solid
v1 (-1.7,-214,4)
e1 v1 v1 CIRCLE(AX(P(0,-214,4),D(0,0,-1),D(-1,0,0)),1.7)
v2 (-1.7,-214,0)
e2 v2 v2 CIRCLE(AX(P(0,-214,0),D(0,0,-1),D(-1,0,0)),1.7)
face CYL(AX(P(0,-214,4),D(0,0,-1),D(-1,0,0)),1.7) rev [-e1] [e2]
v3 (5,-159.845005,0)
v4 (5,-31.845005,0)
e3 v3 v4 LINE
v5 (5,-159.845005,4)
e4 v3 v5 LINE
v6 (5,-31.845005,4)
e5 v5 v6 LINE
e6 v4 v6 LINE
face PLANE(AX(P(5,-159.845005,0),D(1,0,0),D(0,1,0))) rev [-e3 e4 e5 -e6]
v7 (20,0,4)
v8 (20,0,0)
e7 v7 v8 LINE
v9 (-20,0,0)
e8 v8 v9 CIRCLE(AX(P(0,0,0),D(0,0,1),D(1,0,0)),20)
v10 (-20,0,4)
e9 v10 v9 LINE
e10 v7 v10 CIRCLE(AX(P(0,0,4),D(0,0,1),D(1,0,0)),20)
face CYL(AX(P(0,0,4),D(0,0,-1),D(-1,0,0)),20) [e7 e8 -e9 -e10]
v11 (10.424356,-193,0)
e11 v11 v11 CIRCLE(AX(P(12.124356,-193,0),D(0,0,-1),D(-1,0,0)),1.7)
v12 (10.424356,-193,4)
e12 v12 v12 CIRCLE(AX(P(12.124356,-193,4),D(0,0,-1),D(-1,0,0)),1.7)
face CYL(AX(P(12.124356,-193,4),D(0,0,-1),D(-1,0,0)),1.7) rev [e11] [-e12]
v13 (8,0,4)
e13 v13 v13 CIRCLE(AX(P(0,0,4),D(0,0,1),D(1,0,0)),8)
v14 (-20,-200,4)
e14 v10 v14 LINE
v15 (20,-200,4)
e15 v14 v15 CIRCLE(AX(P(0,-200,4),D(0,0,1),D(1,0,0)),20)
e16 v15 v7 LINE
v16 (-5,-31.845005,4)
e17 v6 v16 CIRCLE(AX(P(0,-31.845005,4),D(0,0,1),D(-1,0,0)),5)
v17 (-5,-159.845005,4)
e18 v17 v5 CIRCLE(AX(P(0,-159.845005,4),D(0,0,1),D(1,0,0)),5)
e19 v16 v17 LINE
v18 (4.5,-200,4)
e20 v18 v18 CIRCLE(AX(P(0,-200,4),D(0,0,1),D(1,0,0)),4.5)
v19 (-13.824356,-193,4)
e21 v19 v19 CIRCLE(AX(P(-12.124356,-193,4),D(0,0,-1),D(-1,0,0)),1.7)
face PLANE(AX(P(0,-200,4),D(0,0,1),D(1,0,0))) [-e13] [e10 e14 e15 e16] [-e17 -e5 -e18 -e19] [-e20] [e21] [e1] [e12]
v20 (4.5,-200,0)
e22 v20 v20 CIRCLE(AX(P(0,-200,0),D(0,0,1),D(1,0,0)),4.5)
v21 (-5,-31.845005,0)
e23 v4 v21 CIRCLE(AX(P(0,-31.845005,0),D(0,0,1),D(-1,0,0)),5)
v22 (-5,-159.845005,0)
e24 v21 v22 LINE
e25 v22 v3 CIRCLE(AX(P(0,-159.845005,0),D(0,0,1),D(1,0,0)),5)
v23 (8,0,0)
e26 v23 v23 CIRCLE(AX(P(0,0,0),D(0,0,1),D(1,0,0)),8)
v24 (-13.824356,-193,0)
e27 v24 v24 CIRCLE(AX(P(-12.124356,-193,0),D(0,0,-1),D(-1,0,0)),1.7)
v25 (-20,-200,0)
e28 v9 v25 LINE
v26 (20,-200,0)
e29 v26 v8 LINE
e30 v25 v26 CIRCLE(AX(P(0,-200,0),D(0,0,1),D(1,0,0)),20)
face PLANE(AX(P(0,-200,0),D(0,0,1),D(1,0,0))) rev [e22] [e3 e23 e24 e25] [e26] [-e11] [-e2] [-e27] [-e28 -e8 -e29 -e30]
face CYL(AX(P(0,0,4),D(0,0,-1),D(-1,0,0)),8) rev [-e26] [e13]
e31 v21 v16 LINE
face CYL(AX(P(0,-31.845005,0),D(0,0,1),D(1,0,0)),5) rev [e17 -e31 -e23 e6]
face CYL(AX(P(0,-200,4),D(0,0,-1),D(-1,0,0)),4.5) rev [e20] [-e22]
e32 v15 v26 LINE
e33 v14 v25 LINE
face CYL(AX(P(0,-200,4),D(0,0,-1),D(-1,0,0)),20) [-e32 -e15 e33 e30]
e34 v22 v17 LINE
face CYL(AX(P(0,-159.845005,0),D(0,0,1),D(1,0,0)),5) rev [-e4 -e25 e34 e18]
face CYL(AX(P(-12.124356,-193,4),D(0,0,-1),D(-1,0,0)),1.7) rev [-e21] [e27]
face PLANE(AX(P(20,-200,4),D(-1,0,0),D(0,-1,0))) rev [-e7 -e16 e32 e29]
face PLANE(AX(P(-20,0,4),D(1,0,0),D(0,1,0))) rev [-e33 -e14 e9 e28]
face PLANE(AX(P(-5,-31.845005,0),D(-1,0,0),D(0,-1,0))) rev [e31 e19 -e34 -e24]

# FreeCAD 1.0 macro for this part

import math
import FreeCAD as App
import Part
import Sketcher

doc = App.newDocument("Part")
body = doc.addObject("PartDesign::Body", "Body")

# Sketch on XY plane
sketch1 = body.newObject("Sketcher::SketchObject", "Sketch")
sketch1.AttachmentSupport = (doc.getObject("XY_Plane"), [""])
sketch1.MapMode = "FlatFace"
sketch1.addGeometry([
    Part.LineSegment(App.Vector(-20, 0, 0), App.Vector(-20, -200, 0)),  # 0
    Part.ArcOfCircle(Part.Circle(App.Vector(0, -200, 0), App.Vector(0, 0, 1), 20), math.radians(180), math.radians(360)),  # 1
    Part.LineSegment(App.Vector(20, -200, 0), App.Vector(20, 0, 0)),  # 2
    Part.ArcOfCircle(Part.Circle(App.Vector(0, 0, 0), App.Vector(0, 0, 1), 20), math.radians(0), math.radians(180)),  # 3
    Part.Circle(App.Vector(0, -200, 0), App.Vector(0, 0, 1), 4.5),  # 4
    Part.Circle(App.Vector(0, 0, 0), App.Vector(0, 0, 1), 8),  # 5
], False)
sketch1.addConstraint([
    Sketcher.Constraint("Tangent", 0, 2, 1, 1),
    Sketcher.Constraint("Tangent", 1, 2, 2, 1),
    Sketcher.Constraint("Tangent", 2, 2, 3, 1),
    Sketcher.Constraint("Tangent", 3, 2, 0, 1),
    Sketcher.Constraint("Vertical", 0),
    Sketcher.Constraint("Vertical", 2),
    Sketcher.Constraint("Coincident", 3, 3, -1, 1),
    Sketcher.Constraint("Coincident", 5, 3, -1, 1),
    Sketcher.Constraint("Coincident", 4, 3, 1, 3),
    Sketcher.Constraint("Diameter", 4, 9.0),
    Sketcher.Constraint("Diameter", 5, 16.0),
    Sketcher.Constraint("Radius", 1, 20.0),
    Sketcher.Constraint("DistanceY", 0, 2, 0, 1, 200.0),
])
pad1 = body.newObject("PartDesign::Pad", "Pad")
pad1.Profile = sketch1
pad1.Length = 4

# Sketch on XY plane
sketch2 = body.newObject("Sketcher::SketchObject", "Sketch001")
sketch2.AttachmentSupport = (doc.getObject("XY_Plane"), [""])
sketch2.MapMode = "FlatFace"
sketch2.AttachmentOffset = App.Placement(App.Vector(0, 0, 4), App.Rotation())
sketch2.addGeometry([
    Part.LineSegment(App.Vector(-5, -32, 0), App.Vector(-5, -160, 0)),
    Part.ArcOfCircle(Part.Circle(App.Vector(0, -160, 0), App.Vector(0, 0, 1), 5), math.radians(180), math.radians(360)),
    Part.LineSegment(App.Vector(5, -160, 0), App.Vector(5, -32, 0)),
    Part.ArcOfCircle(Part.Circle(App.Vector(0, -32, 0), App.Vector(0, 0, 1), 5), math.radians(0), math.radians(180)),
], False)
sketch2.addConstraint([
    Sketcher.Constraint("Tangent", 0, 2, 1, 1),
    Sketcher.Constraint("Tangent", 1, 2, 2, 1),
    Sketcher.Constraint("Tangent", 2, 2, 3, 1),
    Sketcher.Constraint("Tangent", 3, 2, 0, 1),
    Sketcher.Constraint("Vertical", 0),
    Sketcher.Constraint("Vertical", 2),
    Sketcher.Constraint("PointOnObject", 1, 3, -2),
    Sketcher.Constraint("Radius", 1, 5.0),
    Sketcher.Constraint("DistanceY", 0, 2, 0, 1, 128.0),
    Sketcher.Constraint("DistanceY", 1, 3, -1, 1, 159.845005),
])
pocket1 = body.newObject("PartDesign::Pocket", "Pocket")
pocket1.Profile = sketch2
pocket1.Type = "ThroughAll"

# Sketch on XY plane
sketch3 = body.newObject("Sketcher::SketchObject", "Sketch002")
sketch3.AttachmentSupport = (doc.getObject("XY_Plane"), [""])
sketch3.MapMode = "FlatFace"
sketch3.addGeometry([
    Part.Circle(App.Vector(0, -214, 0), App.Vector(0, 0, 1), 1.7),
    Part.Circle(App.Vector(12.1, -193, 0), App.Vector(0, 0, 1), 1.7),
    Part.Circle(App.Vector(-12.1, -193, 0), App.Vector(0, 0, 1), 1.7),
], False)
sketch3.addConstraint([
    Sketcher.Constraint("Equal", 0, 1),
    Sketcher.Constraint("Equal", 1, 2),
    Sketcher.Constraint("Symmetric", 1, 3, 2, 3, -2),
    Sketcher.Constraint("PointOnObject", 0, 3, -2),
    Sketcher.Constraint("Diameter", 0, 3.4),
    Sketcher.Constraint("DistanceY", 0, 3, -1, 1, 214.0),
    Sketcher.Constraint("DistanceY", 1, 3, -1, 1, 193.0),
    Sketcher.Constraint("DistanceX", 2, 3, 1, 3, 24.248711),
])
pocket2 = body.newObject("PartDesign::Pocket", "Pocket001")
pocket2.Profile = sketch3
pocket2.Type = "ThroughAll"
pocket2.Reversed = True

doc.recompute()
